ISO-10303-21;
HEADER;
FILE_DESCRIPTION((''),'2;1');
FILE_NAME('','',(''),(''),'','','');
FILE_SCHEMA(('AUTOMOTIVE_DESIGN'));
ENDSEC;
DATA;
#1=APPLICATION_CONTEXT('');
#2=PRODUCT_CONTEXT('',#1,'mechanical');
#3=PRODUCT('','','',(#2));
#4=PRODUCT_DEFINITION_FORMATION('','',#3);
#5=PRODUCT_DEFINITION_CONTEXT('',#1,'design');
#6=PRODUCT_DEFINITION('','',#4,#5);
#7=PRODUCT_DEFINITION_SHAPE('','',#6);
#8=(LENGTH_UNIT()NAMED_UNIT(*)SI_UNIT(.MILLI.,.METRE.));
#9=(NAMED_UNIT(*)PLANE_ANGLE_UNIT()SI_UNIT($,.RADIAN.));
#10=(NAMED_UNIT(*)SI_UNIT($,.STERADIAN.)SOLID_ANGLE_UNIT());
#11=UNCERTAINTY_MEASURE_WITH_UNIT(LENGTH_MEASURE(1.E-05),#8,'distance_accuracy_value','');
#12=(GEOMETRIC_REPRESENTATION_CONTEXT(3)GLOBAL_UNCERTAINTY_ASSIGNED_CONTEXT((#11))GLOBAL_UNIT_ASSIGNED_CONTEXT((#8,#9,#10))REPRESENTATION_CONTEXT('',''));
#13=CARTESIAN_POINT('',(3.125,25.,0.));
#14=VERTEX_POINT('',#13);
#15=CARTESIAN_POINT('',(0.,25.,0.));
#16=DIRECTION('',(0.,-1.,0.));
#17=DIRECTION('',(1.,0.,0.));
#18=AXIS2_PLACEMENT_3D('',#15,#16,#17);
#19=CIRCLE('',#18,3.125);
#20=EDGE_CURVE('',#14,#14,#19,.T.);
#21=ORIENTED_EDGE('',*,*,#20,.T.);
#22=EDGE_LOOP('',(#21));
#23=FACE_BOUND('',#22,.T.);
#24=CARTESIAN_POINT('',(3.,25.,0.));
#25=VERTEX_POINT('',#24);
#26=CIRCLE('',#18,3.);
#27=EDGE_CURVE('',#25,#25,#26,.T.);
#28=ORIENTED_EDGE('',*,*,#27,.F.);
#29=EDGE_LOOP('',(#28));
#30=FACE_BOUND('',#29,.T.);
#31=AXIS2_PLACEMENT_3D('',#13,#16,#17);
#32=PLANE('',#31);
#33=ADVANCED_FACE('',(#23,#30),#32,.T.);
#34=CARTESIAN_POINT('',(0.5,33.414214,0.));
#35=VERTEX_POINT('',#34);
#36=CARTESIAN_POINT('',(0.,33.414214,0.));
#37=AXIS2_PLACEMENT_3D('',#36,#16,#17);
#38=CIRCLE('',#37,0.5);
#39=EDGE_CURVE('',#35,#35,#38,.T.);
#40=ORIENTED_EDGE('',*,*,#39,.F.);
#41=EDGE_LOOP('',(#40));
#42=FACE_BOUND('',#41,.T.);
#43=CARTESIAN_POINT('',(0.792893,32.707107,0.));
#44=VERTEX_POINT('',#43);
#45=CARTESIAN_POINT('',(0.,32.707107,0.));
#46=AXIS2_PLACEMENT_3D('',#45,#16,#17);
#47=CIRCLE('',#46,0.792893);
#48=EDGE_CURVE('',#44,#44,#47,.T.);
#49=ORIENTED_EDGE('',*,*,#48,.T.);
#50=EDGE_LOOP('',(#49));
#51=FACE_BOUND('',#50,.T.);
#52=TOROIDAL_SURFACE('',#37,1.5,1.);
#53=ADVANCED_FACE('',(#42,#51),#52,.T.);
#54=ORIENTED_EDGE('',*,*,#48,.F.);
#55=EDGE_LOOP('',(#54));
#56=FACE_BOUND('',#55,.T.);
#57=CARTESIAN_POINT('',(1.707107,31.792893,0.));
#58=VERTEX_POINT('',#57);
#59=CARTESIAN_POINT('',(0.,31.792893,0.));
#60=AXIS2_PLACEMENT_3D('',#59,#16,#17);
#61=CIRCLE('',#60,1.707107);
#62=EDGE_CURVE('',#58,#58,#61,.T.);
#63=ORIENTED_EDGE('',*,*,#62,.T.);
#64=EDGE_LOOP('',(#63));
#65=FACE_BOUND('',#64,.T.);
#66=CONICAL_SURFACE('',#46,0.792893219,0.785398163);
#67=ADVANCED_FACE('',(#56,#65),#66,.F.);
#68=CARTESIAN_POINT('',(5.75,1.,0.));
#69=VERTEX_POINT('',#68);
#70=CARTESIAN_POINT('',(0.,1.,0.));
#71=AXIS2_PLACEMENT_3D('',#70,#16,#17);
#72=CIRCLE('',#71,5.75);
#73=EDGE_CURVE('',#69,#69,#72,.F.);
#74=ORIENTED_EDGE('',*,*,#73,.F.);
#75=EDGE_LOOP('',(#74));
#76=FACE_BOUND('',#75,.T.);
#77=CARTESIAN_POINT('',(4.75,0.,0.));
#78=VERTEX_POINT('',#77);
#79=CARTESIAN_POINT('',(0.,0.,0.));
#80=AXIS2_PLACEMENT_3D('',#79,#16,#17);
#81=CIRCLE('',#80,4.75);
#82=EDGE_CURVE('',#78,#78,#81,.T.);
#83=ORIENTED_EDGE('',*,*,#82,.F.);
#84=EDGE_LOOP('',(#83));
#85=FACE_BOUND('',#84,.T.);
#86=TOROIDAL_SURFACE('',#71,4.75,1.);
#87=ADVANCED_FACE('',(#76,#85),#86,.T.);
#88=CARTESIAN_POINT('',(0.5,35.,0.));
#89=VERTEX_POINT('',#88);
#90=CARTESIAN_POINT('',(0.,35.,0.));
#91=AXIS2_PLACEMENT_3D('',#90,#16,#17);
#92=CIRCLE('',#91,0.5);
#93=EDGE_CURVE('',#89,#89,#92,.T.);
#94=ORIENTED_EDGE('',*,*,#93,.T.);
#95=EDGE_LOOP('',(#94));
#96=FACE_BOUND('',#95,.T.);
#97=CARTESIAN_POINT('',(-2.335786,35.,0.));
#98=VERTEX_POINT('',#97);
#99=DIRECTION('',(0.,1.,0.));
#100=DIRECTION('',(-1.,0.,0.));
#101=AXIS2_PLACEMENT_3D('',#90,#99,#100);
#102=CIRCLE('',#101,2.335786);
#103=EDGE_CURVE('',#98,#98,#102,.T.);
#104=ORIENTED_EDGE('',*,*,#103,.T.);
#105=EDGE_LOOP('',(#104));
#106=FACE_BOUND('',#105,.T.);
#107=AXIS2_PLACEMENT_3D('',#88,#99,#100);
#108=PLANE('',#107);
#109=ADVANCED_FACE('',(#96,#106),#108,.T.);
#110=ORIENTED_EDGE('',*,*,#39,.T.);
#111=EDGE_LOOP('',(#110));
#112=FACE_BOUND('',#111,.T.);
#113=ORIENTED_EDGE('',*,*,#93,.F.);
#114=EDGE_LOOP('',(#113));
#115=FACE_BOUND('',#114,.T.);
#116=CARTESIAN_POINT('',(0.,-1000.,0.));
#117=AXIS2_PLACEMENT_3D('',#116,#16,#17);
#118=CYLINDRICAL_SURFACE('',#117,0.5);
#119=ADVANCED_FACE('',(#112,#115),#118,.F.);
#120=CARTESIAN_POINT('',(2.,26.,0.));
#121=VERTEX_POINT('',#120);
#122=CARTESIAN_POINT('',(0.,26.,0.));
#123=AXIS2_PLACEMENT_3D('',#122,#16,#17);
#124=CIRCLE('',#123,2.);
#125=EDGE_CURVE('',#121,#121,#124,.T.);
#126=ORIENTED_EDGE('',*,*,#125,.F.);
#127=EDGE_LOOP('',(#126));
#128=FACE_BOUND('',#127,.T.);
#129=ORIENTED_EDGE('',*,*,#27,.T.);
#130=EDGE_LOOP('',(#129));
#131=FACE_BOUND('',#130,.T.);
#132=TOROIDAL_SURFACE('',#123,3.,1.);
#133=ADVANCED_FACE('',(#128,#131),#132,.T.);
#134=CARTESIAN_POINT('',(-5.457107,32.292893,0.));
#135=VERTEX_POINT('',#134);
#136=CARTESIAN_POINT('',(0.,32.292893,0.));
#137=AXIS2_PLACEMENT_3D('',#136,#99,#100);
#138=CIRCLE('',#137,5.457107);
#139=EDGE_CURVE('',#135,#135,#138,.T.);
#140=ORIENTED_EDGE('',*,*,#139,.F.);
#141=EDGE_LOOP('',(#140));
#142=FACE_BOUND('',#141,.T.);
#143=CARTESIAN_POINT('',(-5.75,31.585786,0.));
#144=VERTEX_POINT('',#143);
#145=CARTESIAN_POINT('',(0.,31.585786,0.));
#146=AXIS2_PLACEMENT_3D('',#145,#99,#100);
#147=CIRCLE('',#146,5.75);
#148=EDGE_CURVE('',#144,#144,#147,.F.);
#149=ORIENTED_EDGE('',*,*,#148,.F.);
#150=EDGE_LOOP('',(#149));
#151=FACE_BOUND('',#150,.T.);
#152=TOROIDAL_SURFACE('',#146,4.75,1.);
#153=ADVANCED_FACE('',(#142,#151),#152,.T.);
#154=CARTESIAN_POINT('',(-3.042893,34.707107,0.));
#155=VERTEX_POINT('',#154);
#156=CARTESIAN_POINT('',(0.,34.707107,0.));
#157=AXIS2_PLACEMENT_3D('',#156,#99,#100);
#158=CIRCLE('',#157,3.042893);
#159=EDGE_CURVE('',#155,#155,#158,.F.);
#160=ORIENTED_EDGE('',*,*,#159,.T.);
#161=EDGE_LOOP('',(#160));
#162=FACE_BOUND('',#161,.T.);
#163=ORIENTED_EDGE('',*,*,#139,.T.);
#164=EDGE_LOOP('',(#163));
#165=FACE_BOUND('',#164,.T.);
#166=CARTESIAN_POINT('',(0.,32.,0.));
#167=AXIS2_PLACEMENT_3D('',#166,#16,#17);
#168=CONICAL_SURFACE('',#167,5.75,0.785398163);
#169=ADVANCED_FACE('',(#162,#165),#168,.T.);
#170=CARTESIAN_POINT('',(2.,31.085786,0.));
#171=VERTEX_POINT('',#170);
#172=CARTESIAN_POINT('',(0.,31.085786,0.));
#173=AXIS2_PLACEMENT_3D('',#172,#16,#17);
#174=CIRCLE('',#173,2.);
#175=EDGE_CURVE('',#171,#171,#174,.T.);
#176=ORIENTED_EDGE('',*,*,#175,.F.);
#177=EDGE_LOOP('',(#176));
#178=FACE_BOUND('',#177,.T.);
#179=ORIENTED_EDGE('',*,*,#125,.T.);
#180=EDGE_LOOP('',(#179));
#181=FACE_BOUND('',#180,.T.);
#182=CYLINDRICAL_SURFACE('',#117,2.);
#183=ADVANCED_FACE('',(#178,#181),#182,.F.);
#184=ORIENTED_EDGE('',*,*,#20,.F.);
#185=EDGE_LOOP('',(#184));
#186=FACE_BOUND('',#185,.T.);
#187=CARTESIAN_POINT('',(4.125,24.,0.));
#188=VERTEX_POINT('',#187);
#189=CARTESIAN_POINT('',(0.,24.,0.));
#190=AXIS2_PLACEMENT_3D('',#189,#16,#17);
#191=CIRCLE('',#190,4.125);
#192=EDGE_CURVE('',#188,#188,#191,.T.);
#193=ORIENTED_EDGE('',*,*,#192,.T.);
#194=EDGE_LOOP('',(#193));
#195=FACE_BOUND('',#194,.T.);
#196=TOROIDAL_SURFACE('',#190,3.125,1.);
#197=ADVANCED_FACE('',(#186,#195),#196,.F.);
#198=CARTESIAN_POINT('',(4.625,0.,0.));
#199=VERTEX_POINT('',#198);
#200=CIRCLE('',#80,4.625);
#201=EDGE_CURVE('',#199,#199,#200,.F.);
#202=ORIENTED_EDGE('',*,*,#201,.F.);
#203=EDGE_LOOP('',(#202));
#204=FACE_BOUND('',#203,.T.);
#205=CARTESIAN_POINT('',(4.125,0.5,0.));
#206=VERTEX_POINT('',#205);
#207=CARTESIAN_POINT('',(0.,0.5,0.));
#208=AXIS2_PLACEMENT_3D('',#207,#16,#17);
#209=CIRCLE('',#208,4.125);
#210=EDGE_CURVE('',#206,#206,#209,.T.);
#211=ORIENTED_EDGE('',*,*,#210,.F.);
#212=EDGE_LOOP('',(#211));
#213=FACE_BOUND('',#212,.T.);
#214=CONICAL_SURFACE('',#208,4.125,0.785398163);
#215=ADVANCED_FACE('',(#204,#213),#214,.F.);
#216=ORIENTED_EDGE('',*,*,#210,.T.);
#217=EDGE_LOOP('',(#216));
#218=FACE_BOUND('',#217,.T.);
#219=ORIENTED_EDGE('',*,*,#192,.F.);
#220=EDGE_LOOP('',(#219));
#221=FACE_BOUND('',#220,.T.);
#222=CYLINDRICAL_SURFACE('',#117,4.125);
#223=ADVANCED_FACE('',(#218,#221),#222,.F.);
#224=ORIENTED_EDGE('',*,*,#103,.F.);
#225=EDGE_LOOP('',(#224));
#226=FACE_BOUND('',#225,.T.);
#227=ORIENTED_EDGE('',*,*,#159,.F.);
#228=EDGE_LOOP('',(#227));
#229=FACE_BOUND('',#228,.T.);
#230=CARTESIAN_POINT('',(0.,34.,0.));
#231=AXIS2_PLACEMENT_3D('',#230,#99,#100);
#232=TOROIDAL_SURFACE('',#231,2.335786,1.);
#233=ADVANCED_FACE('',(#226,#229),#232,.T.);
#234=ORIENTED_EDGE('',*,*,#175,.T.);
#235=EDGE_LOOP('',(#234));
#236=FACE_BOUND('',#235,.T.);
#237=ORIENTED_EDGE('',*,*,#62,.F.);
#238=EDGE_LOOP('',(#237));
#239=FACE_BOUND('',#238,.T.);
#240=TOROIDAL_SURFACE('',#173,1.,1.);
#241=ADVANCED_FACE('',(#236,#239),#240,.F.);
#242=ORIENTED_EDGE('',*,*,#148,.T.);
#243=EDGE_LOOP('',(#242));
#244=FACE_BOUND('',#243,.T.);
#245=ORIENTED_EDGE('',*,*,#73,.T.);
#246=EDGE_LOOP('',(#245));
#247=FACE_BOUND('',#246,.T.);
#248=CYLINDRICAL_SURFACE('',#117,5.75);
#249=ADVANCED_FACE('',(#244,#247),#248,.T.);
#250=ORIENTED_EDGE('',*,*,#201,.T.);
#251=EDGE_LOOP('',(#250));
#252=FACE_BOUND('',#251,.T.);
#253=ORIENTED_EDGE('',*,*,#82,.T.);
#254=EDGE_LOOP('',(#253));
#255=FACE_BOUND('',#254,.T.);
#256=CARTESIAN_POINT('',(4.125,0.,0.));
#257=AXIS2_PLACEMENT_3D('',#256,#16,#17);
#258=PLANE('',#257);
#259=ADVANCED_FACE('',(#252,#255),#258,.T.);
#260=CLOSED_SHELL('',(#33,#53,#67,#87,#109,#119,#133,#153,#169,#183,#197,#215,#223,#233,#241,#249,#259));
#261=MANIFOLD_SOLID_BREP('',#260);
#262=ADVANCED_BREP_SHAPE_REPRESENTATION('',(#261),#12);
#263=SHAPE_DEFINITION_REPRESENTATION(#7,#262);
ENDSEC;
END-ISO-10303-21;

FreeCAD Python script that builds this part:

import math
import FreeCAD as App
import Part
import Sketcher
Q = App.Units.Quantity


def edges_at(feature, points):
    """Names of the edges that pass closest to the given points."""
    edges = feature.Shape.Edges
    near = lambda p: min(range(len(edges)), key=lambda i: edges[i].distToShape(Part.Vertex(*p))[0])
    return sorted({f"Edge{near(p) + 1}" for p in points})

doc = App.newDocument("Part")
body = doc.addObject("PartDesign::Body", "Body")

sketch1 = doc.addObject("Sketcher::SketchObject", "Sketch")
body.addObject(sketch1)
sketch1.AttachmentSupport = (doc.XY_Plane, [""])
sketch1.MapMode = "FlatFace"
sketch1.addGeometry(Part.LineSegment(App.Vector(5.75, 0, 0), App.Vector(5.75, 35, 0)), False)
sketch1.addGeometry(Part.LineSegment(App.Vector(5.75, 35, 0), App.Vector(0.5, 35, 0)), False)
sketch1.addGeometry(Part.LineSegment(App.Vector(0.5, 35, 0), App.Vector(0.5, 33.41, 0)), False)
sketch1.addGeometry(Part.ArcOfCircle(Part.Circle(App.Vector(1.5, 33.41, 0), App.Vector(0, 0, 1), 1), math.radians(180), math.radians(225)), False)
sketch1.addGeometry(Part.LineSegment(App.Vector(0.79, 32.71, 0), App.Vector(1.71, 31.79, 0)), False)
sketch1.addGeometry(Part.ArcOfCircle(Part.Circle(App.Vector(1, 31.09, 0), App.Vector(0, 0, 1), 1), math.radians(0), math.radians(45)), False)
sketch1.addGeometry(Part.LineSegment(App.Vector(2, 31.09, 0), App.Vector(2, 26, 0)), False)
sketch1.addGeometry(Part.ArcOfCircle(Part.Circle(App.Vector(3, 26, 0), App.Vector(0, 0, 1), 1), math.radians(-180), math.radians(-90)), False)
sketch1.addGeometry(Part.LineSegment(App.Vector(3, 25, 0), App.Vector(3.12, 25, 0)), False)
sketch1.addGeometry(Part.ArcOfCircle(Part.Circle(App.Vector(3.12, 24, 0), App.Vector(0, 0, 1), 1), math.radians(0), math.radians(90)), False)
sketch1.addGeometry(Part.LineSegment(App.Vector(4.12, 24, 0), App.Vector(4.12, 0, 0)), False)
sketch1.addGeometry(Part.LineSegment(App.Vector(4.12, 0, 0), App.Vector(5.75, 0, 0)), False)
sketch1.addConstraint(Sketcher.Constraint("Coincident", 0, 2, 1, 1))
sketch1.addConstraint(Sketcher.Constraint("Coincident", 1, 2, 2, 1))
sketch1.addConstraint(Sketcher.Constraint("Tangent", 2, 2, 3, 1))
sketch1.addConstraint(Sketcher.Constraint("Tangent", 3, 2, 4, 1))
sketch1.addConstraint(Sketcher.Constraint("Tangent", 4, 2, 5, 2))
sketch1.addConstraint(Sketcher.Constraint("Tangent", 5, 1, 6, 1))
sketch1.addConstraint(Sketcher.Constraint("Tangent", 6, 2, 7, 1))
sketch1.addConstraint(Sketcher.Constraint("Tangent", 7, 2, 8, 1))
sketch1.addConstraint(Sketcher.Constraint("Tangent", 8, 2, 9, 2))
sketch1.addConstraint(Sketcher.Constraint("Tangent", 9, 1, 10, 1))
sketch1.addConstraint(Sketcher.Constraint("Coincident", 10, 2, 11, 1))
sketch1.addConstraint(Sketcher.Constraint("Coincident", 11, 2, 0, 1))
sketch1.addConstraint(Sketcher.Constraint("Vertical", 0))
sketch1.addConstraint(Sketcher.Constraint("Horizontal", 1))
sketch1.addConstraint(Sketcher.Constraint("Vertical", 2))
sketch1.addConstraint(Sketcher.Constraint("Vertical", 6))
sketch1.addConstraint(Sketcher.Constraint("Horizontal", 8))
sketch1.addConstraint(Sketcher.Constraint("Vertical", 10))
sketch1.addConstraint(Sketcher.Constraint("Horizontal", 11))
sketch1.addConstraint(Sketcher.Constraint("Equal", 3, 5))
sketch1.addConstraint(Sketcher.Constraint("Equal", 5, 7))
sketch1.addConstraint(Sketcher.Constraint("Equal", 7, 9))
sketch1.addConstraint(Sketcher.Constraint("PointOnObject", 10, 2, -1))
sketch1.addConstraint(Sketcher.Constraint("Radius", 3, Q("1 mm")))
sketch1.addConstraint(Sketcher.Constraint("DistanceY", 0, 1, 0, 2, Q("35 mm")))
sketch1.addConstraint(Sketcher.Constraint("DistanceY", 10, 2, 10, 1, Q("24 mm")))
sketch1.addConstraint(Sketcher.Constraint("Angle", 4, Q("-45 deg")))
sketch1.addConstraint(Sketcher.Constraint("DistanceX", -1, 1, 5, 3, Q("1 mm")))
sketch1.addConstraint(Sketcher.Constraint("DistanceX", 1, 2, 1, 1, Q("5.25 mm")))
sketch1.addConstraint(Sketcher.Constraint("DistanceX", -1, 1, 3, 3, Q("1.5 mm")))
sketch1.addConstraint(Sketcher.Constraint("DistanceX", 8, 1, 8, 2, Q("0.125 mm")))
sketch1.addConstraint(Sketcher.Constraint("DistanceY", 2, 2, 2, 1, Q("1.585786 mm")))
revolution = doc.addObject("PartDesign::Revolution", "Revolution")
body.addObject(revolution)
revolution.Profile = sketch1
revolution.ReferenceAxis = (sketch1, ["V_Axis"])
revolution.Angle = 360
doc.recompute()

chamfer = doc.addObject("PartDesign::Chamfer", "Chamfer")
body.addObject(chamfer)
chamfer.Base = (revolution, edges_at(revolution, [(-5.75, 35, 0)]))
chamfer.Size = 3
doc.recompute()

fillet = doc.addObject("PartDesign::Fillet", "Fillet")
body.addObject(fillet)
fillet.Base = (chamfer, edges_at(chamfer, [(-5.75, 0, 0), (-5.75, 32, 0), (-2.75, 35, 0)]))
fillet.Radius = 1
doc.recompute()

chamfer2 = doc.addObject("PartDesign::Chamfer", "Chamfer001")
body.addObject(chamfer2)
chamfer2.Base = (fillet, edges_at(fillet, [(-4.125, 0, 0)]))
chamfer2.Size = 0.5

doc.recompute()
